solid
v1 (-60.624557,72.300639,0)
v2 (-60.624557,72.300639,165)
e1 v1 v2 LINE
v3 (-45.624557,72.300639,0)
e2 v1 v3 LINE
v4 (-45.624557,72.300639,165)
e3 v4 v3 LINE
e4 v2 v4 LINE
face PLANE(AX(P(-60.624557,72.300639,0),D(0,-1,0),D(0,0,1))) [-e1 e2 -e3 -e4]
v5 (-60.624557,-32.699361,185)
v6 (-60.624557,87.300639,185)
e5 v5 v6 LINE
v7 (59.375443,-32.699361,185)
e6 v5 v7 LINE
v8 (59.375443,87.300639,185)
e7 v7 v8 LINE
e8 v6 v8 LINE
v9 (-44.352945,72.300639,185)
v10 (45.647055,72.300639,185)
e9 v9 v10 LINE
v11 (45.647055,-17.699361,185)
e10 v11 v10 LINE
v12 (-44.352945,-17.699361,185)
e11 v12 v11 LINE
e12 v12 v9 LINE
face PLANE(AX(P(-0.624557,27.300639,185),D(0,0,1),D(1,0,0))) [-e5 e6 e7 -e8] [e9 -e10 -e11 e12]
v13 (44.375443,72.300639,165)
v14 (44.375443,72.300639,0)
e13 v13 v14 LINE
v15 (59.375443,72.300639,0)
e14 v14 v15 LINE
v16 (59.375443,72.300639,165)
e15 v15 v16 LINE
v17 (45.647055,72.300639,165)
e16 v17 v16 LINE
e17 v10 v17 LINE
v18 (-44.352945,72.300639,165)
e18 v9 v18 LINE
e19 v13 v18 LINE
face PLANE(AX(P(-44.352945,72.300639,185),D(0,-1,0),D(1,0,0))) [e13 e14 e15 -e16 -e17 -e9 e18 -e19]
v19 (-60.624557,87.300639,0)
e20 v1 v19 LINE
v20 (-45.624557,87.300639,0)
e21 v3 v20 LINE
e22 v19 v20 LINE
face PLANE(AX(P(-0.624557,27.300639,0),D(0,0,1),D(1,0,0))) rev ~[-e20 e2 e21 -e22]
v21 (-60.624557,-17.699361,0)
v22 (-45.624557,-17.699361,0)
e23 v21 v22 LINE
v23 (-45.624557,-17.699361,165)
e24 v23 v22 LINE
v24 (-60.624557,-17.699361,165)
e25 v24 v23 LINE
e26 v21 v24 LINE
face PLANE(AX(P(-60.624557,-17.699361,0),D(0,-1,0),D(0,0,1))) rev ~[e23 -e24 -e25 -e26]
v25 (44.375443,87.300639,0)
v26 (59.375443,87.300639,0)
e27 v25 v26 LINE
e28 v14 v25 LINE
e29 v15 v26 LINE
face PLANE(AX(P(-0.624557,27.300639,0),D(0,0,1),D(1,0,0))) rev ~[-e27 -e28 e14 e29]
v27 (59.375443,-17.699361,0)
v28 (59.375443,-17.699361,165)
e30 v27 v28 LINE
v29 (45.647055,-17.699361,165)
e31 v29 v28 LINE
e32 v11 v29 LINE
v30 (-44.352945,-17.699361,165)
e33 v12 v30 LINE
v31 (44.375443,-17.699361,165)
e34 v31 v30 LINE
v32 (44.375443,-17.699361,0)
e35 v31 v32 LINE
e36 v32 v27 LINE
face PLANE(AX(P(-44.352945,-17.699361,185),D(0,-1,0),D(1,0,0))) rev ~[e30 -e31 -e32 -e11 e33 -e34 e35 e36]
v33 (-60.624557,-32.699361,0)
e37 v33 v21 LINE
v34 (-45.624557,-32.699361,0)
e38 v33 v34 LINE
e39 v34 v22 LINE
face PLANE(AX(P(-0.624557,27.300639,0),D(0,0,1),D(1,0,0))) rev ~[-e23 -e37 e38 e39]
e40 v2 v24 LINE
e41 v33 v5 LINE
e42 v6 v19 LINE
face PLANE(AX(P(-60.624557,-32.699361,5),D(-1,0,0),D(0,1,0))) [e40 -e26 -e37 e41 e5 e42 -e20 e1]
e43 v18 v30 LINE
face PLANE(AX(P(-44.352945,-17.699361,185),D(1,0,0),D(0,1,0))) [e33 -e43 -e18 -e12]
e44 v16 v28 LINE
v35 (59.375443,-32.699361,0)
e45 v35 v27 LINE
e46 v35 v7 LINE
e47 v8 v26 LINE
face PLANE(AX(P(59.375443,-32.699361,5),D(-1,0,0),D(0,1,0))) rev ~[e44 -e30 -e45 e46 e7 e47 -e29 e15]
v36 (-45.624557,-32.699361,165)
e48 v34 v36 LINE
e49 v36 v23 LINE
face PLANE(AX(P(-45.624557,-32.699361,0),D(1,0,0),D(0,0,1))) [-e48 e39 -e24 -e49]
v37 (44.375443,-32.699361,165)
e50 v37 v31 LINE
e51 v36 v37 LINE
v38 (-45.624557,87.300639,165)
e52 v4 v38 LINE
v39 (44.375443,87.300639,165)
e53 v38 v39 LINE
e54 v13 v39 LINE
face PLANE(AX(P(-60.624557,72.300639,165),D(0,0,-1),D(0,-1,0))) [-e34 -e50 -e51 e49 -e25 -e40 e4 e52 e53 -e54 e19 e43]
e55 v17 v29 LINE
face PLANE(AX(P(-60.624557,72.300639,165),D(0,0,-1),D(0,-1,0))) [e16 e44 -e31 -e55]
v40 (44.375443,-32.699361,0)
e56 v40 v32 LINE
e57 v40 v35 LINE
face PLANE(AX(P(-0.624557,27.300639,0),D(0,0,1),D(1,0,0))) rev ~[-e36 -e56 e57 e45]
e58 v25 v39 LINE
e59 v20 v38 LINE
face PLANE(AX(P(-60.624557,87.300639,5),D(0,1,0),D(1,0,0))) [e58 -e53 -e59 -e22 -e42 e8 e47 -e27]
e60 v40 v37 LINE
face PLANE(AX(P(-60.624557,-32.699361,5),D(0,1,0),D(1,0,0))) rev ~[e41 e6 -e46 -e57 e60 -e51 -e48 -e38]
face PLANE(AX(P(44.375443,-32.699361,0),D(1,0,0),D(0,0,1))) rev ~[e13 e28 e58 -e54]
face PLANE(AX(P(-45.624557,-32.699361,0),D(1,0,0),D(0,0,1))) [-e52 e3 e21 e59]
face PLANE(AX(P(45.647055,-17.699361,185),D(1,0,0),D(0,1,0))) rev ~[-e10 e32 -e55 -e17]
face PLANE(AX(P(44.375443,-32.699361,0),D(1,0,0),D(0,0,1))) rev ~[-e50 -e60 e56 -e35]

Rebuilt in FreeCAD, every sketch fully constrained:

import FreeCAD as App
import Part
import Sketcher
Q = App.Units.Quantity

doc = App.newDocument("Part")
body = doc.addObject("PartDesign::Body", "Body")

# Sketch on XY plane
sketch1 = body.newObject("Sketcher::SketchObject", "Sketch")
sketch1.AttachmentSupport = (doc.getObject("XY_Plane"), [""])
sketch1.MapMode = "FlatFace"
sketch1.addGeometry([
    Part.LineSegment(App.Vector(-61, 87, 0), App.Vector(-61, -33, 0)),
    Part.LineSegment(App.Vector(-61, -33, 0), App.Vector(59, -33, 0)),
    Part.LineSegment(App.Vector(59, -33, 0), App.Vector(59, 87, 0)),
    Part.LineSegment(App.Vector(59, 87, 0), App.Vector(-61, 87, 0)),
], False)
sketch1.addConstraint([
    Sketcher.Constraint("Coincident", 0, 2, 1, 1),
    Sketcher.Constraint("Coincident", 1, 2, 2, 1),
    Sketcher.Constraint("Coincident", 2, 2, 3, 1),
    Sketcher.Constraint("Coincident", 3, 2, 0, 1),
    Sketcher.Constraint("Vertical", 0),
    Sketcher.Constraint("Horizontal", 1),
    Sketcher.Constraint("Vertical", 2),
    Sketcher.Constraint("Horizontal", 3),
    Sketcher.Constraint("Equal", 3, 0),
    Sketcher.Constraint("DistanceX", 1, 1, 1, 2, Q("120 mm")),
    Sketcher.Constraint("DistanceY", 0, 2, -1, 1, Q("32.699361 mm")),
    Sketcher.Constraint("DistanceX", 0, 2, -1, 1, Q("60.624557 mm")),
])
pad1 = body.newObject("PartDesign::Pad", "Pad")
pad1.Profile = sketch1
pad1.Length = 5

# Sketch on XY plane
sketch2 = body.newObject("Sketcher::SketchObject", "Sketch001")
sketch2.AttachmentSupport = (doc.getObject("XY_Plane"), [""])
sketch2.MapMode = "FlatFace"
sketch2.AttachmentOffset = App.Placement(App.Vector(0, 0, 5), App.Rotation())
sketch2.addGeometry(Part.Circle(App.Vector(-1, 27, 0), App.Vector(0, 0, 1), 12), False)
sketch2.addConstraint([
    Sketcher.Constraint("Diameter", 0, Q("25 mm")),
    Sketcher.Constraint("DistanceY", -1, 1, 0, 3, Q("27.300639 mm")),
    Sketcher.Constraint("DistanceX", 0, 3, -1, 1, Q("0.624557 mm")),
])
pocket1 = body.newObject("PartDesign::Pocket", "Pocket")
pocket1.Profile = sketch2
pocket1.Length = 25

# Sketch on XY plane
sketch3 = body.newObject("Sketcher::SketchObject", "Sketch002")
sketch3.AttachmentSupport = (doc.getObject("XY_Plane"), [""])
sketch3.MapMode = "FlatFace"
sketch3.AttachmentOffset = App.Placement(App.Vector(0, 0, 5), App.Rotation())
sketch3.addGeometry([
    Part.LineSegment(App.Vector(-61, 87, 0), App.Vector(-61, -33, 0)),
    Part.LineSegment(App.Vector(-61, -33, 0), App.Vector(59, -33, 0)),
    Part.LineSegment(App.Vector(59, -33, 0), App.Vector(59, 87, 0)),
    Part.LineSegment(App.Vector(59, 87, 0), App.Vector(-61, 87, 0)),
], False)
sketch3.addConstraint([
    Sketcher.Constraint("Coincident", 0, 2, 1, 1),
    Sketcher.Constraint("Coincident", 1, 2, 2, 1),
    Sketcher.Constraint("Coincident", 2, 2, 3, 1),
    Sketcher.Constraint("Coincident", 3, 2, 0, 1),
    Sketcher.Constraint("Vertical", 0),
    Sketcher.Constraint("Horizontal", 1),
    Sketcher.Constraint("Vertical", 2),
    Sketcher.Constraint("Horizontal", 3),
    Sketcher.Constraint("Equal", 3, 0),
    Sketcher.Constraint("DistanceX", 1, 1, 1, 2, Q("120 mm")),
    Sketcher.Constraint("DistanceY", 0, 2, -1, 1, Q("32.699361 mm")),
    Sketcher.Constraint("DistanceX", 0, 2, -1, 1, Q("60.624557 mm")),
])
pad2 = body.newObject("PartDesign::Pad", "Pad001")
pad2.Profile = sketch3
pad2.Length = 180

# Sketch on XZ plane
sketch4 = body.newObject("Sketcher::SketchObject", "Sketch003")
sketch4.AttachmentSupport = (doc.getObject("XZ_Plane"), [""])
sketch4.MapMode = "FlatFace"
sketch4.AttachmentOffset = App.Placement(App.Vector(0, 0, 32.699361), App.Rotation())
sketch4.addGeometry([
    Part.LineSegment(App.Vector(-46, 165, 0), App.Vector(-46, 0, 0)),
    Part.LineSegment(App.Vector(-46, 0, 0), App.Vector(44, 0, 0)),
    Part.LineSegment(App.Vector(44, 0, 0), App.Vector(44, 165, 0)),
    Part.LineSegment(App.Vector(44, 165, 0), App.Vector(-46, 165, 0)),
], False)
sketch4.addConstraint([
    Sketcher.Constraint("Coincident", 0, 2, 1, 1),
    Sketcher.Constraint("Coincident", 1, 2, 2, 1),
    Sketcher.Constraint("Coincident", 2, 2, 3, 1),
    Sketcher.Constraint("Coincident", 3, 2, 0, 1),
    Sketcher.Constraint("Vertical", 0),
    Sketcher.Constraint("Horizontal", 1),
    Sketcher.Constraint("Vertical", 2),
    Sketcher.Constraint("Horizontal", 3),
    Sketcher.Constraint("PointOnObject", 0, 2, -1),
    Sketcher.Constraint("DistanceX", 1, 1, 1, 2, Q("90 mm")),
    Sketcher.Constraint("DistanceY", 0, 2, 0, 1, Q("165 mm")),
    Sketcher.Constraint("DistanceX", 0, 2, -1, 1, Q("45.624557 mm")),
])
pocket2 = body.newObject("PartDesign::Pocket", "Pocket001")
pocket2.Profile = sketch4
pocket2.Length = 120

# Sketch on YZ plane
sketch5 = body.newObject("Sketcher::SketchObject", "Sketch004")
sketch5.AttachmentSupport = (doc.getObject("YZ_Plane"), [""])
sketch5.MapMode = "FlatFace"
sketch5.AttachmentOffset = App.Placement(App.Vector(0, 0, -60.624557), App.Rotation())
sketch5.addGeometry([
    Part.LineSegment(App.Vector(72, 165, 0), App.Vector(72, 0, 0)),
    Part.LineSegment(App.Vector(72, 0, 0), App.Vector(-18, 0, 0)),
    Part.LineSegment(App.Vector(-18, 0, 0), App.Vector(-18, 165, 0)),
    Part.LineSegment(App.Vector(-18, 165, 0), App.Vector(72, 165, 0)),
], False)
sketch5.addConstraint([
    Sketcher.Constraint("Coincident", 0, 2, 1, 1),
    Sketcher.Constraint("Coincident", 1, 2, 2, 1),
    Sketcher.Constraint("Coincident", 2, 2, 3, 1),
    Sketcher.Constraint("Coincident", 3, 2, 0, 1),
    Sketcher.Constraint("Vertical", 0),
    Sketcher.Constraint("Horizontal", 1),
    Sketcher.Constraint("Vertical", 2),
    Sketcher.Constraint("Horizontal", 3),
    Sketcher.Constraint("PointOnObject", 0, 2, -1),
    Sketcher.Constraint("DistanceX", 1, 2, 1, 1, Q("90 mm")),
    Sketcher.Constraint("DistanceY", 0, 2, 0, 1, Q("165 mm")),
    Sketcher.Constraint("DistanceX", -1, 1, 0, 2, Q("72.300639 mm")),
])
pocket3 = body.newObject("PartDesign::Pocket", "Pocket002")
pocket3.Profile = sketch5
pocket3.Length = 120
pocket3.Reversed = True

# Sketch on XY plane
sketch6 = body.newObject("Sketcher::SketchObject", "Sketch005")
sketch6.AttachmentSupport = (doc.getObject("XY_Plane"), [""])
sketch6.MapMode = "FlatFace"
sketch6.AttachmentOffset = App.Placement(App.Vector(0, 0, 185), App.Rotation())
sketch6.addGeometry([
    Part.LineSegment(App.Vector(-44, 72, 0), App.Vector(-44, -18, 0)),
    Part.LineSegment(App.Vector(-44, -18, 0), App.Vector(46, -18, 0)),
    Part.LineSegment(App.Vector(46, -18, 0), App.Vector(46, 72, 0)),
    Part.LineSegment(App.Vector(46, 72, 0), App.Vector(-44, 72, 0)),
], False)
sketch6.addConstraint([
    Sketcher.Constraint("Coincident", 0, 2, 1, 1),
    Sketcher.Constraint("Coincident", 1, 2, 2, 1),
    Sketcher.Constraint("Coincident", 2, 2, 3, 1),
    Sketcher.Constraint("Coincident", 3, 2, 0, 1),
    Sketcher.Constraint("Vertical", 0),
    Sketcher.Constraint("Horizontal", 1),
    Sketcher.Constraint("Vertical", 2),
    Sketcher.Constraint("Horizontal", 3),
    Sketcher.Constraint("Equal", 3, 0),
    Sketcher.Constraint("DistanceX", 1, 1, 1, 2, Q("90 mm")),
    Sketcher.Constraint("DistanceY", 0, 2, -1, 1, Q("17.699361 mm")),
    Sketcher.Constraint("DistanceX", 0, 2, -1, 1, Q("44.352945 mm")),
])
pocket4 = body.newObject("PartDesign::Pocket", "Pocket003")
pocket4.Profile = sketch6
pocket4.Length = 25

doc.recompute()
